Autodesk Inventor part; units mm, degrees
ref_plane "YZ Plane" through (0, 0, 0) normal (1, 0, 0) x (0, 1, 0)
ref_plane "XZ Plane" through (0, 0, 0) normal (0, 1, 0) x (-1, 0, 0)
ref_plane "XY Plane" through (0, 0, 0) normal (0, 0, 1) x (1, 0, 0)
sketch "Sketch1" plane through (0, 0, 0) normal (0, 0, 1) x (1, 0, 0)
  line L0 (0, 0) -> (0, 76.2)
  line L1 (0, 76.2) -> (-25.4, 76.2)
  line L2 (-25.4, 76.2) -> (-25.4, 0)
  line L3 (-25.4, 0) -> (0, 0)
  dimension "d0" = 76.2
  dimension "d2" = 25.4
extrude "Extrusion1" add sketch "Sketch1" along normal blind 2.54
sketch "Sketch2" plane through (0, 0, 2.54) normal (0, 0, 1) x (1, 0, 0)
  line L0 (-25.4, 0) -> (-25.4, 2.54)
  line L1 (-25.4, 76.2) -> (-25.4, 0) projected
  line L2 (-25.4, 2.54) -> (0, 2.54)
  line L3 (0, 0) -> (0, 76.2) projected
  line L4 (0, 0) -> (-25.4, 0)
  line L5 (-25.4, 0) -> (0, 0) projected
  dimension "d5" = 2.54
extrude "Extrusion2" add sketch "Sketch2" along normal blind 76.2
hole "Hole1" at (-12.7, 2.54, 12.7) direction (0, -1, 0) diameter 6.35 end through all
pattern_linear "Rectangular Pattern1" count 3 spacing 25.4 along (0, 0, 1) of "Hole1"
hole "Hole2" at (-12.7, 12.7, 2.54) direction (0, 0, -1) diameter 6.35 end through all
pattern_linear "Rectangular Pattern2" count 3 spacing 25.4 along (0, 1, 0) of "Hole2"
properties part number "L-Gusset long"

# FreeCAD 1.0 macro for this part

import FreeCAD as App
import Part
import Sketcher
Q = App.Units.Quantity


def add_polygon(sketch, points):
    """Adds a closed chain of lines whose ends are joined by coincident constraints."""
    first, n = sketch.GeometryCount, len(points)
    for a, b in zip(points, points[1:] + points[:1]):
        sketch.addGeometry(Part.LineSegment(App.Vector(*a, 0), App.Vector(*b, 0)), False)
    for i in range(n):
        sketch.addConstraint(Sketcher.Constraint("Coincident", first + i, 2, first + (i + 1) % n, 1))

doc = App.newDocument("Part")
params = doc.addObject("Spreadsheet::Sheet", "Params")
for row, (alias, value) in enumerate([
    ("sketch1_width", "1 in"),
    ("sketch1_height", "3 in"),
    ("pad1_length", "0.1 in"),
    ("sketch2_height", "0.1 in"),
    ("sketch2_width", "1 in"),
    ("pad2_length", "3 in"),
    ("sketch3_diameter", "0.25 in"),
    ("hole_diameter", "0.25 in"),
    ("linearpattern_pitch", "1 in"),
    ("sketch4_diameter", "0.25 in"),
    ("hole2_diameter", "0.25 in"),
    ("linearpattern2_pitch", "1 in"),
], start=1):
    params.set(f"A{row}", alias)
    params.set(f"B{row}", "=" + value)
    params.setAlias(f"B{row}", alias)

body = doc.addObject("PartDesign::Body", "Body")

# Sketch on XY plane
sketch1 = body.newObject("Sketcher::SketchObject", "Sketch")
sketch1.AttachmentSupport = (doc.getObject("XY_Plane"), [""])
sketch1.MapMode = "FlatFace"
add_polygon(sketch1, [(-25.4, 0), (0, 0), (0, 76.2), (-25.4, 76.2)])  # lines 0-3
sketch1.addConstraint(Sketcher.Constraint("Horizontal", 0))
sketch1.addConstraint(Sketcher.Constraint("Vertical", 1))
sketch1.addConstraint(Sketcher.Constraint("Horizontal", 2))
sketch1.addConstraint(Sketcher.Constraint("Vertical", 3))
sketch1.addConstraint(Sketcher.Constraint("Coincident", 0, 2, -1, 1))
sketch1.addConstraint(Sketcher.Constraint("DistanceX", 0, 1, 0, 2, Q("1 in")))
sketch1.addConstraint(Sketcher.Constraint("DistanceY", 1, 1, 1, 2, Q("3 in")))
sketch1.setExpression("Constraints[9]", "Params.sketch1_width")
sketch1.setExpression("Constraints[10]", "Params.sketch1_height")
pad1 = body.newObject("PartDesign::Pad", "Pad")
pad1.Profile = sketch1
pad1.setExpression("Length", "Params.pad1_length")

# Sketch on XY plane
sketch2 = body.newObject("Sketcher::SketchObject", "Sketch001")
sketch2.AttachmentSupport = (doc.getObject("XY_Plane"), [""])
sketch2.MapMode = "FlatFace"
sketch2.AttachmentOffset = App.Placement(App.Vector(0, 0, 0.1 * 25.4), App.Rotation())
add_polygon(sketch2, [(-25.4, 2.54), (-25.4, 0), (0, 0), (0, 2.54)])  # lines 0-3
sketch2.addConstraint(Sketcher.Constraint("Vertical", 0))
sketch2.addConstraint(Sketcher.Constraint("Horizontal", 1))
sketch2.addConstraint(Sketcher.Constraint("Vertical", 2))
sketch2.addConstraint(Sketcher.Constraint("Horizontal", 3))
sketch2.addConstraint(Sketcher.Constraint("Coincident", 1, 2, -1, 1))
sketch2.addConstraint(Sketcher.Constraint("DistanceY", 0, 2, 0, 1, Q("0.1 in")))
sketch2.addConstraint(Sketcher.Constraint("DistanceX", 1, 1, 1, 2, Q("1 in")))
sketch2.setExpression("Constraints[9]", "Params.sketch2_height")
sketch2.setExpression("Constraints[10]", "Params.sketch2_width")
pad2 = body.newObject("PartDesign::Pad", "Pad001")
pad2.Profile = sketch2
pad2.setExpression("Length", "Params.pad2_length")

# Sketch on XZ plane
sketch3 = body.newObject("Sketcher::SketchObject", "Sketch002")
sketch3.AttachmentSupport = (doc.getObject("XZ_Plane"), [""])
sketch3.MapMode = "FlatFace"
sketch3.AttachmentOffset = App.Placement(App.Vector(0, 0, -0.1 * 25.4), App.Rotation())
sketch3.addGeometry(Part.Circle(App.Vector(-12.7, 12.7, 0), App.Vector(0, 0, 1), 3.175), False)
sketch3.addConstraint(Sketcher.Constraint("Diameter", 0, Q("0.25 in")))
sketch3.addConstraint(Sketcher.Constraint("DistanceX", 0, 3, -1, 1, Q("0.5 in")))
sketch3.addConstraint(Sketcher.Constraint("DistanceY", -1, 1, 0, 3, Q("0.5 in")))
sketch3.setExpression("Constraints[0]", "Params.sketch3_diameter")
doc.recompute()
hole = body.newObject("PartDesign::Hole", "Hole")
hole.Profile = sketch3
hole.ThreadType = "None"
hole.setExpression("Diameter", "Params.hole_diameter")
hole.DepthType = "ThroughAll"
hole.Reversed = True
doc.recompute()

linearpattern = body.newObject("PartDesign::LinearPattern", "LinearPattern")
linearpattern.Originals = [hole]
linearpattern.Direction = (doc.getObject("Z_Axis"), [""])
linearpattern.Mode = "offset"
linearpattern.setExpression("Offset", "Params.linearpattern_pitch")
linearpattern.Occurrences = 3
body.Tip = linearpattern

# Sketch on XY plane
sketch4 = body.newObject("Sketcher::SketchObject", "Sketch003")
sketch4.AttachmentSupport = (doc.getObject("XY_Plane"), [""])
sketch4.MapMode = "FlatFace"
sketch4.AttachmentOffset = App.Placement(App.Vector(0, 0, 0.1 * 25.4), App.Rotation())
sketch4.addGeometry(Part.Circle(App.Vector(-12.7, 12.7, 0), App.Vector(0, 0, 1), 3.175), False)
sketch4.addConstraint(Sketcher.Constraint("Diameter", 0, Q("0.25 in")))
sketch4.addConstraint(Sketcher.Constraint("DistanceX", 0, 3, -1, 1, Q("0.5 in")))
sketch4.addConstraint(Sketcher.Constraint("DistanceY", -1, 1, 0, 3, Q("0.5 in")))
sketch4.setExpression("Constraints[0]", "Params.sketch4_diameter")
doc.recompute()
hole2 = body.newObject("PartDesign::Hole", "Hole001")
hole2.Profile = sketch4
hole2.ThreadType = "None"
hole2.setExpression("Diameter", "Params.hole2_diameter")
hole2.DepthType = "ThroughAll"
doc.recompute()

linearpattern2 = body.newObject("PartDesign::LinearPattern", "LinearPattern001")
linearpattern2.Originals = [hole2]
linearpattern2.Direction = (doc.getObject("Y_Axis"), [""])
linearpattern2.Mode = "offset"
linearpattern2.setExpression("Offset", "Params.linearpattern2_pitch")
linearpattern2.Occurrences = 3
body.Tip = linearpattern2

doc.recompute()
